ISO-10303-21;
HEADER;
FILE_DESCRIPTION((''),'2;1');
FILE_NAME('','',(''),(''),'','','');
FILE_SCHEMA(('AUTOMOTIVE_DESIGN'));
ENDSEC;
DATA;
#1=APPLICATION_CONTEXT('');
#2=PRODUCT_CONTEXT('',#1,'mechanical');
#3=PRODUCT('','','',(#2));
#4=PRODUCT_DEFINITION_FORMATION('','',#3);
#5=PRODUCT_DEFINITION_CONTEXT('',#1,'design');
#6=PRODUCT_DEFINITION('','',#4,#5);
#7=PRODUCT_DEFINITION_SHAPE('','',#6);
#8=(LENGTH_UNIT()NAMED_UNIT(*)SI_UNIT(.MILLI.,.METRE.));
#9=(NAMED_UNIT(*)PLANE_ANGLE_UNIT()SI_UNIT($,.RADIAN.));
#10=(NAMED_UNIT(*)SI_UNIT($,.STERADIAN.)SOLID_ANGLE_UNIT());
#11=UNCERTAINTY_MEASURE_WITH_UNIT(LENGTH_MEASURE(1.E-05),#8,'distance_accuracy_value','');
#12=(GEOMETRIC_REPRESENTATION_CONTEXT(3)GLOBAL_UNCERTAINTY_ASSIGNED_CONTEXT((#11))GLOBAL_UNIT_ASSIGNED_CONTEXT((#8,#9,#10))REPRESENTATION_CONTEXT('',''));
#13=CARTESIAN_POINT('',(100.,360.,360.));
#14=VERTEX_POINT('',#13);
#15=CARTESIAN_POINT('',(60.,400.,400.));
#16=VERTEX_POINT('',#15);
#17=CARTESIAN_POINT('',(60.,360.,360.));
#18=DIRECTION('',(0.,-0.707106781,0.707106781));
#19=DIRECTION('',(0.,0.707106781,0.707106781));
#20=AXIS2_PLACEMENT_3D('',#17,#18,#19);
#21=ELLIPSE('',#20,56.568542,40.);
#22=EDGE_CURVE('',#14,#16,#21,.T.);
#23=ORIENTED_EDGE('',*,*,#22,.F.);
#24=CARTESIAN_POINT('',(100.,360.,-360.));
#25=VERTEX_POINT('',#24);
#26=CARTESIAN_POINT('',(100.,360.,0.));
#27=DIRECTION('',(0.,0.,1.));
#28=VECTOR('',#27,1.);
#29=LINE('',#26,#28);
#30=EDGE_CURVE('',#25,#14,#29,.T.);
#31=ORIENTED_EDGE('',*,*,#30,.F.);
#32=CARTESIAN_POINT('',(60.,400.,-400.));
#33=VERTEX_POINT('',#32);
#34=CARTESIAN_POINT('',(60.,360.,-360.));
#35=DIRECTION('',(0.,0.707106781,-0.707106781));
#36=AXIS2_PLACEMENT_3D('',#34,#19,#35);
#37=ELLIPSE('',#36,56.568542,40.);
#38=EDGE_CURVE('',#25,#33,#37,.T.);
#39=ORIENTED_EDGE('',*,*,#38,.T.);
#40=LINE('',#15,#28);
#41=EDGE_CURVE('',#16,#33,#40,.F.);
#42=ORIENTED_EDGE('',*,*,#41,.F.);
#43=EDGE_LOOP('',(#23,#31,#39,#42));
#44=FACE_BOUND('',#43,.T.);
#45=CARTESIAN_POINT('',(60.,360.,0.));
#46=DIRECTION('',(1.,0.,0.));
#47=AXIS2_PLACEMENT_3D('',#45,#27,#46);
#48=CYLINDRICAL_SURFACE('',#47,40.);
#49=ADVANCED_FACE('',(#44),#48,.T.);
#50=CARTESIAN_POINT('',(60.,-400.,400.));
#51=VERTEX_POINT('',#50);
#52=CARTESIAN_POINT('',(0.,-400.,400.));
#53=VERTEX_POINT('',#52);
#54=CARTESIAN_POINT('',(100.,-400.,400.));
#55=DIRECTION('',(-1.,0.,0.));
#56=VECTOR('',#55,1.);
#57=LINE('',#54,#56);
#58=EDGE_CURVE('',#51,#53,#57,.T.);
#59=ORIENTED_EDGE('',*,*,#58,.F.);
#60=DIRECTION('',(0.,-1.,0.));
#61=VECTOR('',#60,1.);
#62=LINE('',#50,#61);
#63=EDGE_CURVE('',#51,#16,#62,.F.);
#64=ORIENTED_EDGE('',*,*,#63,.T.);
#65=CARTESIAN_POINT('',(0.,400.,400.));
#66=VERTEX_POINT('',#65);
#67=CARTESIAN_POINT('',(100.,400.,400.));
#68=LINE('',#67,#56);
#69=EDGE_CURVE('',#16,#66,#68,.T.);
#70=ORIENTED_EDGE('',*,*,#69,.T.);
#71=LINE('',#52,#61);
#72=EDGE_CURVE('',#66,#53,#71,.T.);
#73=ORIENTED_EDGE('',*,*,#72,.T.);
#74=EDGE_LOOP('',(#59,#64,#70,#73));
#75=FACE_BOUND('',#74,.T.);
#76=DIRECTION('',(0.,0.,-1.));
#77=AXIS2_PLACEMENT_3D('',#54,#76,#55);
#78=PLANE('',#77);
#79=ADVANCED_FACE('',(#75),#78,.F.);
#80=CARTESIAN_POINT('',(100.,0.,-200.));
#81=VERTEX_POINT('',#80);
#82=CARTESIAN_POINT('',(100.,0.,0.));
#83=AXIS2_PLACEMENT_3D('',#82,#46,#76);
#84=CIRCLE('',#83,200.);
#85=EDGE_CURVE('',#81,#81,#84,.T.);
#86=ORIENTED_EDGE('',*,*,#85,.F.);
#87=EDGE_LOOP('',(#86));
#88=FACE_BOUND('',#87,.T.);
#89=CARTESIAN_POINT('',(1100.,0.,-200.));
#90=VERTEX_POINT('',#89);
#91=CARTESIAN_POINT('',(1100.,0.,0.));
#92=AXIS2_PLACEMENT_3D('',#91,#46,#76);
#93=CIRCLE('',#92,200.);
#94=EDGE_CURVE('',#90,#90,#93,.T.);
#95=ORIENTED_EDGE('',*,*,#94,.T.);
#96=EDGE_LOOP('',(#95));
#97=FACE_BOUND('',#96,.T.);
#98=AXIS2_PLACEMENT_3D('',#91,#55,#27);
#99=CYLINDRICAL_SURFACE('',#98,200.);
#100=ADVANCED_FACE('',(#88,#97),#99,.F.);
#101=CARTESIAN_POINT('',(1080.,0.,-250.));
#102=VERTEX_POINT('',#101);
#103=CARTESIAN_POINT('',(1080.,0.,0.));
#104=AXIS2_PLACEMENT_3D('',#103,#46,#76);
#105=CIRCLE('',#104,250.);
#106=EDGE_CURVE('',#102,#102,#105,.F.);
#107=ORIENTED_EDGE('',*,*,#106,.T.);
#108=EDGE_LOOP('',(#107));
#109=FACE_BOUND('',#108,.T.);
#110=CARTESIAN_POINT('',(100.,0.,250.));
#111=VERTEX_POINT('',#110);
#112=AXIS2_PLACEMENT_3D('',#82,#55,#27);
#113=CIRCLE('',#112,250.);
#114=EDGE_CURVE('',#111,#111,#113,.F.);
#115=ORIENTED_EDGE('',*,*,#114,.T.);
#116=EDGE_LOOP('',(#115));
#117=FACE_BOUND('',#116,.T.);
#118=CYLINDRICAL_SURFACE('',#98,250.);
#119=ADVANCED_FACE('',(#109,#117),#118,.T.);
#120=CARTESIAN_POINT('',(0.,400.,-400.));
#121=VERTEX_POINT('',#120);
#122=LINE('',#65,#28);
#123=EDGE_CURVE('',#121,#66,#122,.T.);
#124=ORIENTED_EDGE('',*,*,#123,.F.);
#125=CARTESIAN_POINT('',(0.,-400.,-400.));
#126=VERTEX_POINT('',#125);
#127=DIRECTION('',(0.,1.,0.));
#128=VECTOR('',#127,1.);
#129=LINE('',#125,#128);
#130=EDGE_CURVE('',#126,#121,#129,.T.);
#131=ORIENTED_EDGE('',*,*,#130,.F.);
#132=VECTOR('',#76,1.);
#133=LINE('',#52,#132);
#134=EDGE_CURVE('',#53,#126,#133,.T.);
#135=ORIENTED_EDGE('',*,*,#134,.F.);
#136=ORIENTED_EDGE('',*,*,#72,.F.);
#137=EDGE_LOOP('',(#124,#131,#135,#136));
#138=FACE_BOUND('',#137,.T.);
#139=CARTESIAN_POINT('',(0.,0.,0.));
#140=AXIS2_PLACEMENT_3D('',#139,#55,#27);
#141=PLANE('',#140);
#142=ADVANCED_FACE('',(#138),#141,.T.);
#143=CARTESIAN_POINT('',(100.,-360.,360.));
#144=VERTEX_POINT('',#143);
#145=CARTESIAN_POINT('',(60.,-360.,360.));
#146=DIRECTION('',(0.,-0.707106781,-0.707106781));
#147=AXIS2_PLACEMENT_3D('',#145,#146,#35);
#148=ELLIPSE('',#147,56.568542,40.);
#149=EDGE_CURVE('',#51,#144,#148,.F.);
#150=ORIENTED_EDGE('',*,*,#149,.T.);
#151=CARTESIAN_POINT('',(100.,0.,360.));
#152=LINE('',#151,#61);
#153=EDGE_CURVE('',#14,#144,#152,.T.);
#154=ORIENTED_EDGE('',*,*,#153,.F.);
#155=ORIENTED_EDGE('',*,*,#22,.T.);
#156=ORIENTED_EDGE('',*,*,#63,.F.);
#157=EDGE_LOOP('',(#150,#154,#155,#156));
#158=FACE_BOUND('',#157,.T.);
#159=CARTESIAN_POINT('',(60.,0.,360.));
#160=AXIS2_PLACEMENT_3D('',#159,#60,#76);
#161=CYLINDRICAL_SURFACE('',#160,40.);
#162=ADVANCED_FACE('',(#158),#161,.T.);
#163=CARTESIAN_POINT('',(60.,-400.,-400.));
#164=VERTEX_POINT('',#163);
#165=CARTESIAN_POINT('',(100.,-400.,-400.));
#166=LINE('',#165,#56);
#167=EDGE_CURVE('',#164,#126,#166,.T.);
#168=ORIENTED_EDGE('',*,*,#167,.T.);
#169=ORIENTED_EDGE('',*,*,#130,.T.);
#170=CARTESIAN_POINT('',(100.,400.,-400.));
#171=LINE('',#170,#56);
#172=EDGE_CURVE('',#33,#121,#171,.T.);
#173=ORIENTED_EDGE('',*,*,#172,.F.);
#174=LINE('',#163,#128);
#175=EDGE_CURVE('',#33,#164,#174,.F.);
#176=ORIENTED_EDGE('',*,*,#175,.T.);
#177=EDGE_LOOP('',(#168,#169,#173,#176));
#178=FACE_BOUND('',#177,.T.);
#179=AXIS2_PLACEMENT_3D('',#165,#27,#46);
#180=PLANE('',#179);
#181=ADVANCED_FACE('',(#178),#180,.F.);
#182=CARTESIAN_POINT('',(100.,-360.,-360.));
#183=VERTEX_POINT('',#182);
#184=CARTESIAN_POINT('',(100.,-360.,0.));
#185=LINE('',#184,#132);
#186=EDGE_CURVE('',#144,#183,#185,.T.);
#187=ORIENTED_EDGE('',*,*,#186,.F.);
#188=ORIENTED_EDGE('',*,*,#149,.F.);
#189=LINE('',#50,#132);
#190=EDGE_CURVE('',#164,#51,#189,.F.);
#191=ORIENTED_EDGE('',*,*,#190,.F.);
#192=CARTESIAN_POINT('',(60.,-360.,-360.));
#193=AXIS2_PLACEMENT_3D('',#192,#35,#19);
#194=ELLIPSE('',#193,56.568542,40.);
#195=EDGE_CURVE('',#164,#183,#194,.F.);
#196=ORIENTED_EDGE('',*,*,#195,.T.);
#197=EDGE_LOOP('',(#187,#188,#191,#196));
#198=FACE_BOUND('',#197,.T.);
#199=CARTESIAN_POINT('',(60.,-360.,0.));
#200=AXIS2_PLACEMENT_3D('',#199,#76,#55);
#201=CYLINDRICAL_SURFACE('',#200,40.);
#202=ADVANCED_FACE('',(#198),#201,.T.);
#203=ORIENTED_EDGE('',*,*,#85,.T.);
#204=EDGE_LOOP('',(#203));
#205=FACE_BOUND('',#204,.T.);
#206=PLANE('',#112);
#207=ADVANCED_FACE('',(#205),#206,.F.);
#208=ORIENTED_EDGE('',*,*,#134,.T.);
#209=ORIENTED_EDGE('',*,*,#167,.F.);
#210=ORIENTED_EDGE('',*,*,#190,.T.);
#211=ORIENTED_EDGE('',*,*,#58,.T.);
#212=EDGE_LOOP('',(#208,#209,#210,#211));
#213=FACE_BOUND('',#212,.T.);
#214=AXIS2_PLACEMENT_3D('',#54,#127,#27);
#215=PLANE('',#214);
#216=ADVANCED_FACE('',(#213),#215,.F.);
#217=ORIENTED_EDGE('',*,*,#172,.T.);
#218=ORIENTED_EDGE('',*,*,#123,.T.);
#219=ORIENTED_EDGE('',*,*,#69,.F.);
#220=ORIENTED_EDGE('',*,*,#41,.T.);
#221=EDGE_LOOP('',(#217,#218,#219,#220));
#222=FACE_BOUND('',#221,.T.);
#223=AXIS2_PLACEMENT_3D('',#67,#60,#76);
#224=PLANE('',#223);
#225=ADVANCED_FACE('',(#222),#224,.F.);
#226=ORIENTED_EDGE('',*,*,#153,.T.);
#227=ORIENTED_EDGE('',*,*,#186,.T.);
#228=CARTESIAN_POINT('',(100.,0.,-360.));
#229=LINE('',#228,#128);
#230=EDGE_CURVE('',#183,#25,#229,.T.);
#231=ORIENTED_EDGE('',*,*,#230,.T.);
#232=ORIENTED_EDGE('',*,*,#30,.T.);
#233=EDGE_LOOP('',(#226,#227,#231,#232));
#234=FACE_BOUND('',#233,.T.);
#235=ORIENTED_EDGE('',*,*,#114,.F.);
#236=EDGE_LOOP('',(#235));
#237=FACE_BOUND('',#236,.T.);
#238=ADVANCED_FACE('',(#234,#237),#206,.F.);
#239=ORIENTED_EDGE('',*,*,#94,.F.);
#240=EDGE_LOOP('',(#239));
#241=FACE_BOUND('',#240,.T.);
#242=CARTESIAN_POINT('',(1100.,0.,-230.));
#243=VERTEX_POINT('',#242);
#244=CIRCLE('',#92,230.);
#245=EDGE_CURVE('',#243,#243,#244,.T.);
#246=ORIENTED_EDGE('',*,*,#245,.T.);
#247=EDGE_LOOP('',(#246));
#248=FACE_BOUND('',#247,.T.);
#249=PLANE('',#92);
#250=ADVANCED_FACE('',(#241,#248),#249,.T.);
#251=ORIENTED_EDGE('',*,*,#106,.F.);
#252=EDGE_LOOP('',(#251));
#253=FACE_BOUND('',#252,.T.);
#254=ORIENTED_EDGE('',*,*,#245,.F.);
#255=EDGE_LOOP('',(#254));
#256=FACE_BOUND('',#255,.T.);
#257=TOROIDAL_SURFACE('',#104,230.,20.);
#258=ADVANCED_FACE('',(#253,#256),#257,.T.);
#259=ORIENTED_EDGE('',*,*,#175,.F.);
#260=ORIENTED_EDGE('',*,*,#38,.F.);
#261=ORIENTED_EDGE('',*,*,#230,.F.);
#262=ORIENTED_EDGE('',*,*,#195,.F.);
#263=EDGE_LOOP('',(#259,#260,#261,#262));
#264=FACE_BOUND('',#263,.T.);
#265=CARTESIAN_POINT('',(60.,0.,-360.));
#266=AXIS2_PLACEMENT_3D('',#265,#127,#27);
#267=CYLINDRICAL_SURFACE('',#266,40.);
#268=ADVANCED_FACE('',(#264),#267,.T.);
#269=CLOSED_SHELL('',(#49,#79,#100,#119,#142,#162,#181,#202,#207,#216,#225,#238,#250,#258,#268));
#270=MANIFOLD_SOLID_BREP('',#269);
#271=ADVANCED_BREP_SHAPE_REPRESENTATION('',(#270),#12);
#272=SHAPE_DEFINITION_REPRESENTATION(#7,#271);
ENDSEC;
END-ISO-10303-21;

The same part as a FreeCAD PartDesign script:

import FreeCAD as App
import Part
import Sketcher

V = App.Vector
Q = App.Units.Quantity


def edges_at(feature, points):
    """Names of the edges that pass closest to the given points."""
    edges = feature.Shape.Edges
    near = lambda p: min(range(len(edges)), key=lambda i: edges[i].distToShape(Part.Vertex(*p))[0])
    return sorted({f"Edge{near(p) + 1}" for p in points})

doc = App.newDocument("Part")
body = doc.addObject("PartDesign::Body", "Body")

sketch1 = body.newObject("Sketcher::SketchObject", "Sketch")
sketch1.AttachmentSupport = (doc.getObject("YZ_Plane"), [""])
sketch1.MapMode = "FlatFace"
sketch1.addGeometry([
    Part.LineSegment(V(400, 400, 0), V(-400, 400, 0)),
    Part.LineSegment(V(-400, 400, 0), V(-400, -400, 0)),
    Part.LineSegment(V(-400, -400, 0), V(400, -400, 0)),
    Part.LineSegment(V(400, -400, 0), V(400, 400, 0)),
], False)
sketch1.addConstraint([
    Sketcher.Constraint("Coincident", 0, 2, 1, 1),
    Sketcher.Constraint("Coincident", 1, 2, 2, 1),
    Sketcher.Constraint("Coincident", 2, 2, 3, 1),
    Sketcher.Constraint("Coincident", 3, 2, 0, 1),
    Sketcher.Constraint("Horizontal", 0),
    Sketcher.Constraint("Vertical", 1),
    Sketcher.Constraint("Horizontal", 2),
    Sketcher.Constraint("Vertical", 3),
    Sketcher.Constraint("Symmetric", 0, 2, 2, 2, -1, 1),
    Sketcher.Constraint("Equal", 2, 1),
    Sketcher.Constraint("DistanceX", 0, 2, 0, 1, Q("800 mm")),
])
pad1 = body.newObject("PartDesign::Pad", "Pad")
pad1.Profile = sketch1
pad1.Length = 100

sketch2 = body.newObject("Sketcher::SketchObject", "Sketch001")
sketch2.AttachmentSupport = (doc.getObject("YZ_Plane"), [""])
sketch2.MapMode = "FlatFace"
sketch2.AttachmentOffset = App.Placement(V(0, 0, 100), App.Rotation())
sketch2.addGeometry([
    Part.Circle(V(0, 0, 0), V(0, 0, 1), 250),
    Part.Circle(V(0, 0, 0), V(0, 0, 1), 200),
], False)
sketch2.addConstraint([
    Sketcher.Constraint("Coincident", 0, 3, -1, 1),
    Sketcher.Constraint("Coincident", 1, 3, -1, 1),
    Sketcher.Constraint("Diameter", 0, Q("500 mm")),
    Sketcher.Constraint("Diameter", 1, Q("400 mm")),
])
pad2 = body.newObject("PartDesign::Pad", "Pad001")
pad2.Profile = sketch2
pad2.Length = 1000
doc.recompute()

fillet = body.newObject("PartDesign::Fillet", "Fillet")
fillet.Base = (pad2, edges_at(pad2, [
    (100, 0, 400),
    (100, -400, 0),
    (100, 0, -400),
    (100, 400, 0),
]))
fillet.Radius = 40
doc.recompute()

fillet2 = body.newObject("PartDesign::Fillet", "Fillet001")
fillet2.Base = (fillet, edges_at(fillet, [(1100, 0, -250)]))
fillet2.Radius = 20

doc.recompute()
